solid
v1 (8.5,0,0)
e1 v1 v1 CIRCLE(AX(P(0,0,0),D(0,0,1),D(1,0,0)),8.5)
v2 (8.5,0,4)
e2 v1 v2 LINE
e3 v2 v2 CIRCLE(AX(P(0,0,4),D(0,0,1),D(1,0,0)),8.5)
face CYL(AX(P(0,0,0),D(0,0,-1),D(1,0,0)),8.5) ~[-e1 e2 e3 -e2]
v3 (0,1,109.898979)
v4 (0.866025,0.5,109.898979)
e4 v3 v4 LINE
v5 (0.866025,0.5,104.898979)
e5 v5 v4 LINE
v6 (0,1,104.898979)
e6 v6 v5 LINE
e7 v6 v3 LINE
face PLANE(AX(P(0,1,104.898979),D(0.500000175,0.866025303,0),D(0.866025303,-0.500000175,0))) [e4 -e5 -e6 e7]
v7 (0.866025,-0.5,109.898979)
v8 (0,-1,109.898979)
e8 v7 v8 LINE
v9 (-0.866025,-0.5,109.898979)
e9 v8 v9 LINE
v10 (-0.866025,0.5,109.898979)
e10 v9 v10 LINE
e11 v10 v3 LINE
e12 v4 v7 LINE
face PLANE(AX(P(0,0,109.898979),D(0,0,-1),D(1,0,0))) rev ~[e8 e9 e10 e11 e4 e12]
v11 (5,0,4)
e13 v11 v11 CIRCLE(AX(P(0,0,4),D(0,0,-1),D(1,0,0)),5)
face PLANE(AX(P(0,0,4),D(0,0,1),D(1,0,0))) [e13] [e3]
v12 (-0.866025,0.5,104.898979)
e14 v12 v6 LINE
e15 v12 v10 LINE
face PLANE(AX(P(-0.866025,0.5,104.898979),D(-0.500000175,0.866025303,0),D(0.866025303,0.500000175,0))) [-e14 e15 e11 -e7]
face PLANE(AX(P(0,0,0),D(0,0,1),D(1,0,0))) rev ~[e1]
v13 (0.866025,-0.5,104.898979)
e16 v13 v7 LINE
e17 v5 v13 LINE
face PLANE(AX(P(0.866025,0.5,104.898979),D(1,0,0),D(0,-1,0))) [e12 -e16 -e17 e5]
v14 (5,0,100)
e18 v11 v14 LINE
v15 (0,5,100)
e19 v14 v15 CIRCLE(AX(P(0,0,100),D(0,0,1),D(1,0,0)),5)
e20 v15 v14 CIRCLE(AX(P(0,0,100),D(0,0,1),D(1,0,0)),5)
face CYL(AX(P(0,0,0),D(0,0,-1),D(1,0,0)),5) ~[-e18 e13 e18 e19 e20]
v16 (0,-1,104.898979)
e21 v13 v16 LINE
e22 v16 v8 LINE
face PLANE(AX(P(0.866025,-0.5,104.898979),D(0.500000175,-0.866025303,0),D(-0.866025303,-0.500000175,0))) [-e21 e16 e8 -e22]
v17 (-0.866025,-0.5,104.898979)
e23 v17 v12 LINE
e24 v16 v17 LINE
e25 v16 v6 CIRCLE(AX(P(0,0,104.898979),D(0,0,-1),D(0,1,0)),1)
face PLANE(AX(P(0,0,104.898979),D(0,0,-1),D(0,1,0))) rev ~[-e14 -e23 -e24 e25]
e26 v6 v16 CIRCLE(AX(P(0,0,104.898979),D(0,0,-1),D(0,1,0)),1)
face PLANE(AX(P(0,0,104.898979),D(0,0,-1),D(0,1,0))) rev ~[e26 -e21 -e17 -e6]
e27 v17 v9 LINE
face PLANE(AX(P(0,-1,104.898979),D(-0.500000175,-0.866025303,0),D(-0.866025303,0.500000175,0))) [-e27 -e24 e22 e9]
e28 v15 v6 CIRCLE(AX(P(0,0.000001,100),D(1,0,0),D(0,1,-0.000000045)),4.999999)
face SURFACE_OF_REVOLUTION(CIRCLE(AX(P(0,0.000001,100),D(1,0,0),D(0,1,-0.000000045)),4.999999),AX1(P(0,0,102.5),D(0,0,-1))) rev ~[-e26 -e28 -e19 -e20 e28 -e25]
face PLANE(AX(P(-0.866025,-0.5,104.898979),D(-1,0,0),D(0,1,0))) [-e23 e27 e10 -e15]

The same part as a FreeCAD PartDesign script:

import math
import FreeCAD as App
import Part
import Sketcher

V = App.Vector
Q = App.Units.Quantity


def add_polygon(sketch, points):
    """Adds a closed chain of lines whose ends are joined by coincident constraints."""
    first, n = sketch.GeometryCount, len(points)
    for a, b in zip(points, points[1:] + points[:1]):
        sketch.addGeometry(Part.LineSegment(App.Vector(*a, 0), App.Vector(*b, 0)), False)
    for i in range(n):
        sketch.addConstraint(Sketcher.Constraint("Coincident", first + i, 2, first + (i + 1) % n, 1))

doc = App.newDocument("Part")
body = doc.addObject("PartDesign::Body", "Body")

# Sketch on XY plane
sketch1 = body.newObject("Sketcher::SketchObject", "Sketch")
sketch1.AttachmentSupport = (doc.getObject("XY_Plane"), [""])
sketch1.MapMode = "FlatFace"
sketch1.addGeometry(Part.Circle(V(0, 0, 0), V(0, 0, 1), 8.5), False)
sketch1.addConstraint([
    Sketcher.Constraint("Coincident", 0, 3, -1, 1),
    Sketcher.Constraint("Diameter", 0, 17.0),
])
pad1 = body.newObject("PartDesign::Pad", "Pad")
pad1.Profile = sketch1
pad1.Length = 4

# Sketch on XY plane
sketch2 = body.newObject("Sketcher::SketchObject", "Sketch001")
sketch2.AttachmentSupport = (doc.getObject("XY_Plane"), [""])
sketch2.MapMode = "FlatFace"
sketch2.addGeometry(Part.Circle(V(0, 0, 0), V(0, 0, 1), 5), False)
sketch2.addConstraint([
    Sketcher.Constraint("Coincident", 0, 3, -1, 1),
    Sketcher.Constraint("Diameter", 0, 10.0),
])
pad2 = body.newObject("PartDesign::Pad", "Pad001")
pad2.Profile = sketch2
pad2.Length = 100

# Sketch on YZ plane
sketch3 = body.newObject("Sketcher::SketchObject", "Sketch002")
sketch3.AttachmentSupport = (doc.getObject("YZ_Plane"), [""])
sketch3.MapMode = "FlatFace"
sketch3.addGeometry([
    Part.LineSegment(V(0, 104.898979, 0), V(0, 100, 0)),
    Part.LineSegment(V(0, 100, 0), V(5, 100, 0)),
    Part.ArcOfCircle(Part.Circle(V(0.000001, 100, 0), V(0, 0, 1), 4.999999), math.radians(-0.000003), math.radians(78.463049)),
    Part.LineSegment(V(1, 104.898979, 0), V(0, 104.898979, 0)),
], False)
sketch3.addConstraint([
    Sketcher.Constraint("Coincident", 0, 2, 1, 1),
    Sketcher.Constraint("Coincident", 1, 2, 2, 1),
    Sketcher.Constraint("Coincident", 2, 2, 3, 1),
    Sketcher.Constraint("Coincident", 3, 2, 0, 1),
    Sketcher.Constraint("Vertical", 0),
    Sketcher.Constraint("Horizontal", 1),
    Sketcher.Constraint("Horizontal", 3),
    Sketcher.Constraint("Coincident", 0, 2, 2, 3),
    Sketcher.Constraint("PointOnObject", 2, 3, -2),
    Sketcher.Constraint("Radius", 2, 4.999999),
    Sketcher.Constraint("DistanceX", 3, 2, 3, 1, 1.0),
    Sketcher.Constraint("DistanceY", -1, 1, 2, 3, 100.0),
])
revolution = body.newObject("PartDesign::Revolution", "Revolution")
revolution.Profile = sketch3
revolution.ReferenceAxis = (sketch3, ["V_Axis"])
revolution.Angle = 360

# Sketch on XY plane
sketch4 = body.newObject("Sketcher::SketchObject", "Sketch003")
sketch4.AttachmentSupport = (doc.getObject("XY_Plane"), [""])
sketch4.MapMode = "FlatFace"
sketch4.AttachmentOffset = App.Placement(V(0, 0, 104.898979), App.Rotation())
add_polygon(sketch4, [(0.866025, 0.5), (0.866025, -0.5), (0, -1), (-0.866025, -0.5), (-0.866025, 0.5), (0, 1)])  # lines 0-5
sketch4.addConstraint([
    Sketcher.Constraint("Vertical", 0),
    Sketcher.Constraint("Vertical", 3),
    Sketcher.Constraint("Symmetric", 0, 2, 3, 2, -1, 1),
    Sketcher.Constraint("Symmetric", 1, 2, 4, 2, -1, 1),
    Sketcher.Constraint("PointOnObject", 1, 2, -2),
    Sketcher.Constraint("Parallel", 2, 5),
    Sketcher.Constraint("Horizontal", 0, 2, 2, 2),
    Sketcher.Constraint("DistanceY", 0, 2, 0, 1, 1.0),
    Sketcher.Constraint("Angle", 1, Q("-149.999988 deg")),
    Sketcher.Constraint("Distance", 1, 1.0),
])
pad3 = body.newObject("PartDesign::Pad", "Pad002")
pad3.Profile = sketch4
pad3.Length = 5

doc.recompute()
